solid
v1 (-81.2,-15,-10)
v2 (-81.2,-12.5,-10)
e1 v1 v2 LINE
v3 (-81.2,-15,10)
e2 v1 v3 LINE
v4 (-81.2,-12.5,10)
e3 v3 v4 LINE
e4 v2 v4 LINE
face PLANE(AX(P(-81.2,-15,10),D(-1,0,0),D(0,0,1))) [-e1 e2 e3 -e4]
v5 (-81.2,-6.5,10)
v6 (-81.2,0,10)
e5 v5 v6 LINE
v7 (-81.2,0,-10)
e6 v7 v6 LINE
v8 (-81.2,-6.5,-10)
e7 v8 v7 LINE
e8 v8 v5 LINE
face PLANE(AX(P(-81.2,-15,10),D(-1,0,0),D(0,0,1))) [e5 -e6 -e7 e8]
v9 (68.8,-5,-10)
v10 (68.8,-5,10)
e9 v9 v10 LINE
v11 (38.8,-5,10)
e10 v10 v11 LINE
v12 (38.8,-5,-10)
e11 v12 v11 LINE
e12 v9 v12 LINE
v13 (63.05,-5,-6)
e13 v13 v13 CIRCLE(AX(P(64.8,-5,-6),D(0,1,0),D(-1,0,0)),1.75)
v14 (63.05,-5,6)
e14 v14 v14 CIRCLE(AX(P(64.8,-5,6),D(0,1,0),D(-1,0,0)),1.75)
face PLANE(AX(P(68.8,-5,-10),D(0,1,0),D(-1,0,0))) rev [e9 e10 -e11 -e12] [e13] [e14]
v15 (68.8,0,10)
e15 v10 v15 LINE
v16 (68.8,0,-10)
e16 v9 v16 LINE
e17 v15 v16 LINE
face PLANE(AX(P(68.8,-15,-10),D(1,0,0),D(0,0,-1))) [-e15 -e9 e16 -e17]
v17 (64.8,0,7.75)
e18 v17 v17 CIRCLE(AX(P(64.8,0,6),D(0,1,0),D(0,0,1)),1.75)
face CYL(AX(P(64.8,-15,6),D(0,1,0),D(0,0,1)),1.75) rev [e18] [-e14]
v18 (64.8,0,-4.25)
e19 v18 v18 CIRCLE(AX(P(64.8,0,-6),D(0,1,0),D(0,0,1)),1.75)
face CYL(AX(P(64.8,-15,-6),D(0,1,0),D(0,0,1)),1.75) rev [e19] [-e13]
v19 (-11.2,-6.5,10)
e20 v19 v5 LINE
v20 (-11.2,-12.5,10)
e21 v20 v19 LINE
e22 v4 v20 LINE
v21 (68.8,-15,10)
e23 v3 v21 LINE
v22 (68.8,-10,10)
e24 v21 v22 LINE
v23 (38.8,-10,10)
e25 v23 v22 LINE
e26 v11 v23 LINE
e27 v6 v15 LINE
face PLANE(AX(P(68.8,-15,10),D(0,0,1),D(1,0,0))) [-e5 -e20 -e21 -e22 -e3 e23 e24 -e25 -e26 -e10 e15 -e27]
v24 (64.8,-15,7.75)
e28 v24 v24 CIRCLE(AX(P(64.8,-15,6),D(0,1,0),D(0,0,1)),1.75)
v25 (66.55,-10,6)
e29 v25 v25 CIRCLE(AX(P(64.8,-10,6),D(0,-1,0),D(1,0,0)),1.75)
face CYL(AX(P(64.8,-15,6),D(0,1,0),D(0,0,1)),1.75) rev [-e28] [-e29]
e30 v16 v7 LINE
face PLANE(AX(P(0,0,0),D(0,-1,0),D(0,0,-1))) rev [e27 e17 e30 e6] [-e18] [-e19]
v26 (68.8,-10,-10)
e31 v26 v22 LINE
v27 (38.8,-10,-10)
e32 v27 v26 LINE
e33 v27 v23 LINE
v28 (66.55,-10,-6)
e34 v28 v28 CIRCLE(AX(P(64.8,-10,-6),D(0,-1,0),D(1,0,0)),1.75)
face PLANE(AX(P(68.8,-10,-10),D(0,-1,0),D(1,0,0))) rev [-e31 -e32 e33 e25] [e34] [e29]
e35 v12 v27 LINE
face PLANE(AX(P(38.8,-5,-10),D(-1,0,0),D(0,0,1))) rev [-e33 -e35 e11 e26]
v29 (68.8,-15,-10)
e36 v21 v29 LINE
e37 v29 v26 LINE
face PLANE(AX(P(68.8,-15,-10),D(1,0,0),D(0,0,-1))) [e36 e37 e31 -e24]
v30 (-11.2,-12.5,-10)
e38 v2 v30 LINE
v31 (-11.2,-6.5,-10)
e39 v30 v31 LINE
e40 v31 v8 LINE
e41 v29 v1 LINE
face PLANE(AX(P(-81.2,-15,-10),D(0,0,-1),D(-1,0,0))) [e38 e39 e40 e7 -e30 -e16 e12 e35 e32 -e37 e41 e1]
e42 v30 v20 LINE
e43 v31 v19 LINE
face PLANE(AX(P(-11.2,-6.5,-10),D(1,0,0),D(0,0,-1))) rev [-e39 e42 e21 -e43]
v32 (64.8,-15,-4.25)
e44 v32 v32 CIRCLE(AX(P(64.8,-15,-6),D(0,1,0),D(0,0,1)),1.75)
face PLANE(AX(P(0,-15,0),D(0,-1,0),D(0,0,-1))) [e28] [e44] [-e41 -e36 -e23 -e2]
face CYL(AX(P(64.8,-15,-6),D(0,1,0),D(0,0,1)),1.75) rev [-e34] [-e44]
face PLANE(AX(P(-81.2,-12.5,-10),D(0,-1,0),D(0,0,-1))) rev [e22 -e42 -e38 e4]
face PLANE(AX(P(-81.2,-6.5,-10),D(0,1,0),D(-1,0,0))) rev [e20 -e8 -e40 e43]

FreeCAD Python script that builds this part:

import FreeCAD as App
import Part
import Sketcher


def add_polygon(sketch, points):
    """Adds a closed chain of lines whose ends are joined by coincident constraints."""
    first, n = sketch.GeometryCount, len(points)
    for a, b in zip(points, points[1:] + points[:1]):
        sketch.addGeometry(Part.LineSegment(App.Vector(*a, 0), App.Vector(*b, 0)), False)
    for i in range(n):
        sketch.addConstraint(Sketcher.Constraint("Coincident", first + i, 2, first + (i + 1) % n, 1))

doc = App.newDocument("Part")
body = doc.addObject("PartDesign::Body", "Body")

# Sketch on XZ plane
sketch1 = body.newObject("Sketcher::SketchObject", "Sketch")
sketch1.AttachmentSupport = (doc.getObject("XZ_Plane"), [""])
sketch1.MapMode = "FlatFace"
add_polygon(sketch1, [(-81, -10), (-81, 10), (69, 10), (69, -10)])  # lines 0-3
sketch1.addConstraint(Sketcher.Constraint("Vertical", 0))
sketch1.addConstraint(Sketcher.Constraint("Horizontal", 1))
sketch1.addConstraint(Sketcher.Constraint("Vertical", 2))
sketch1.addConstraint(Sketcher.Constraint("Horizontal", 3))
sketch1.addConstraint(Sketcher.Constraint("DistanceX", 1, 1, 1, 2, 150.0))
sketch1.addConstraint(Sketcher.Constraint("DistanceY", 0, 1, 0, 2, 20.0))
sketch1.addConstraint(Sketcher.Constraint("DistanceY", -1, 1, 0, 2, 10.0))
sketch1.addConstraint(Sketcher.Constraint("DistanceX", 0, 2, -1, 1, 81.2))
pad1 = body.newObject("PartDesign::Pad", "Pad")
pad1.Profile = sketch1
pad1.Length = 15

# Sketch on XY plane
sketch2 = body.newObject("Sketcher::SketchObject", "Sketch001")
sketch2.AttachmentSupport = (doc.getObject("XY_Plane"), [""])
sketch2.MapMode = "FlatFace"
sketch2.AttachmentOffset = App.Placement(App.Vector(0, 0, 10), App.Rotation())
add_polygon(sketch2, [(-81, -6), (-81, -12), (-11, -12), (-11, -6)])  # lines 0-3
sketch2.addConstraint(Sketcher.Constraint("Vertical", 0))
sketch2.addConstraint(Sketcher.Constraint("Horizontal", 1))
sketch2.addConstraint(Sketcher.Constraint("Vertical", 2))
sketch2.addConstraint(Sketcher.Constraint("Horizontal", 3))
sketch2.addConstraint(Sketcher.Constraint("DistanceX", 1, 1, 1, 2, 70.0))
sketch2.addConstraint(Sketcher.Constraint("DistanceY", 0, 2, 0, 1, 6.0))
sketch2.addConstraint(Sketcher.Constraint("DistanceX", 0, 2, -1, 1, 81.2))
sketch2.addConstraint(Sketcher.Constraint("DistanceY", 0, 2, -1, 1, 12.5))
pocket1 = body.newObject("PartDesign::Pocket", "Pocket")
pocket1.Profile = sketch2
pocket1.Type = "ThroughAll"

# Sketch on XY plane
sketch3 = body.newObject("Sketcher::SketchObject", "Sketch002")
sketch3.AttachmentSupport = (doc.getObject("XY_Plane"), [""])
sketch3.MapMode = "FlatFace"
sketch3.AttachmentOffset = App.Placement(App.Vector(0, 0, 10), App.Rotation())
add_polygon(sketch3, [(39, -5), (39, -10), (69, -10), (69, -5)])  # lines 0-3
sketch3.addConstraint(Sketcher.Constraint("Vertical", 0))
sketch3.addConstraint(Sketcher.Constraint("Horizontal", 1))
sketch3.addConstraint(Sketcher.Constraint("Vertical", 2))
sketch3.addConstraint(Sketcher.Constraint("Horizontal", 3))
sketch3.addConstraint(Sketcher.Constraint("DistanceX", 1, 1, 1, 2, 30.0))
sketch3.addConstraint(Sketcher.Constraint("DistanceY", 0, 2, 0, 1, 5.0))
sketch3.addConstraint(Sketcher.Constraint("DistanceY", 0, 2, -1, 1, 10.0))
sketch3.addConstraint(Sketcher.Constraint("DistanceX", -1, 1, 0, 2, 38.8))
pocket2 = body.newObject("PartDesign::Pocket", "Pocket001")
pocket2.Profile = sketch3
pocket2.Type = "ThroughAll"

# Sketch on XZ plane
sketch4 = body.newObject("Sketcher::SketchObject", "Sketch003")
sketch4.AttachmentSupport = (doc.getObject("XZ_Plane"), [""])
sketch4.MapMode = "FlatFace"
sketch4.addGeometry(Part.Circle(App.Vector(64.8, 6, 0), App.Vector(0, 0, 1), 1.8), False)
sketch4.addGeometry(Part.Circle(App.Vector(64.8, -6, 0), App.Vector(0, 0, 1), 1.8), False)
sketch4.addConstraint(Sketcher.Constraint("Equal", 0, 1))
sketch4.addConstraint(Sketcher.Constraint("Symmetric", 0, 3, 1, 3, -1))
sketch4.addConstraint(Sketcher.Constraint("Diameter", 0, 3.5))
sketch4.addConstraint(Sketcher.Constraint("DistanceY", -1, 1, 0, 3, 6.0))
sketch4.addConstraint(Sketcher.Constraint("DistanceX", -1, 1, 0, 3, 64.8))
pocket3 = body.newObject("PartDesign::Pocket", "Pocket002")
pocket3.Profile = sketch4
pocket3.Type = "ThroughAll"
pocket3.Reversed = True

doc.recompute()
